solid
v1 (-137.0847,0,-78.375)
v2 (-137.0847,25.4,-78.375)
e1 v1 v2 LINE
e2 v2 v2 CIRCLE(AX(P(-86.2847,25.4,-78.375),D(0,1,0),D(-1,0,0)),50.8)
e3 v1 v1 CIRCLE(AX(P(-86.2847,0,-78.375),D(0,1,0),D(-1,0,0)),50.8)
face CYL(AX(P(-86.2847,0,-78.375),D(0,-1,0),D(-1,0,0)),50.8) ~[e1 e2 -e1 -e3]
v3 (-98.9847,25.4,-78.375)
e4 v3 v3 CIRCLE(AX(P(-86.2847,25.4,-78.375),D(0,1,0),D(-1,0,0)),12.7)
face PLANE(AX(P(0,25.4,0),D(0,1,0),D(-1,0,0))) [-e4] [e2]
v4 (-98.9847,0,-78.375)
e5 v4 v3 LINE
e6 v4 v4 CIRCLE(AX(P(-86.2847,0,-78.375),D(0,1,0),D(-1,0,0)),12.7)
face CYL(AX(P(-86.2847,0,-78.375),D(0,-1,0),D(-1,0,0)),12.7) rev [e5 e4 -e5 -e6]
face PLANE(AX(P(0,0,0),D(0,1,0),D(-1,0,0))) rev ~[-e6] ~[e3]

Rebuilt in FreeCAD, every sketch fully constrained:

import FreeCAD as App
import Part
import Sketcher

V = App.Vector
Q = App.Units.Quantity

doc = App.newDocument("Part")
body = doc.addObject("PartDesign::Body", "Body")

# Sketch on XZ plane
sketch1 = body.newObject("Sketcher::SketchObject", "Sketch")
sketch1.AttachmentSupport = (doc.getObject("XZ_Plane"), [""])
sketch1.MapMode = "FlatFace"
sketch1.addGeometry(Part.Circle(V(-86.2847, -78.375, 0), V(0, 0, 1), 50.8), False)
sketch1.addGeometry(Part.Circle(V(-86.2847, -78.375, 0), V(0, 0, 1), 12.7), False)
sketch1.addConstraint(Sketcher.Constraint("Coincident", 1, 3, 0, 3))
sketch1.addConstraint(Sketcher.Constraint("Diameter", 0, Q("4 in")))
sketch1.addConstraint(Sketcher.Constraint("Diameter", 1, Q("1 in")))
sketch1.addConstraint(Sketcher.Constraint("DistanceX", 0, 3, -1, 1, Q("86.2847 mm")))
sketch1.addConstraint(Sketcher.Constraint("DistanceY", 0, 3, -1, 1, Q("78.375 mm")))
pad1 = body.newObject("PartDesign::Pad", "Pad")
pad1.Profile = sketch1
pad1.Length = Q("1 in")
pad1.Reversed = True

doc.recompute()
